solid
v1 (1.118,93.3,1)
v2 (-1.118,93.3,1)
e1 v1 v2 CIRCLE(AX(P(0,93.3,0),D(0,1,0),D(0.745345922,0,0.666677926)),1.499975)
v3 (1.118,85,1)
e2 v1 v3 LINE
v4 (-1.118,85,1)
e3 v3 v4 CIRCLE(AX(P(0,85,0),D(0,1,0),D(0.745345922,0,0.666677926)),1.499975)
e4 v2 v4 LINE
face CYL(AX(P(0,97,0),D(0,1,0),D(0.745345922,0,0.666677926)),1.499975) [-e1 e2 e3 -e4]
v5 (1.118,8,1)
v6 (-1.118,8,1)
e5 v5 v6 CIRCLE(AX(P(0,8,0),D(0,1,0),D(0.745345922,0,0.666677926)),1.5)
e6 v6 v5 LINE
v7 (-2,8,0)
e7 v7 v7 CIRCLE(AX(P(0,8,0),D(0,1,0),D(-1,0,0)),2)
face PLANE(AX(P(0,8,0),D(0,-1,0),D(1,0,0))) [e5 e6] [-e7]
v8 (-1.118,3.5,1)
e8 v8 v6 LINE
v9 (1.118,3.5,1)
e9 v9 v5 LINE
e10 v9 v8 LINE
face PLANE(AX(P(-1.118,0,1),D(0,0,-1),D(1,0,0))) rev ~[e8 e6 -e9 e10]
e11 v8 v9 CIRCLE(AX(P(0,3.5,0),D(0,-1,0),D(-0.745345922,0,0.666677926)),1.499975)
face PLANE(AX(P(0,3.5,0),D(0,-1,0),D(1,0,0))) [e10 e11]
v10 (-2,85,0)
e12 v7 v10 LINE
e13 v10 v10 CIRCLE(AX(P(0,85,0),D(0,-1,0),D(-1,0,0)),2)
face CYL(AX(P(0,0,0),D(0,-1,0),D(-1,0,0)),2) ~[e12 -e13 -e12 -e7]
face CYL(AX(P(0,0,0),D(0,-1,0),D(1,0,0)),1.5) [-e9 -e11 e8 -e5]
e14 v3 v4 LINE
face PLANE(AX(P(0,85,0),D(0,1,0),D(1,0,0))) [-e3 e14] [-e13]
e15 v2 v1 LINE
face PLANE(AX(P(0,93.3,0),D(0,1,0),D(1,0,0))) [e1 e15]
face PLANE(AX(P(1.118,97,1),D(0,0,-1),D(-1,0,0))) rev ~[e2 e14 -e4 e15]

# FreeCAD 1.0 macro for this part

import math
import FreeCAD as App
import Part
import Sketcher

V = App.Vector

doc = App.newDocument("Part")
params = doc.addObject("Spreadsheet::Sheet", "Params")
for row, (alias, value) in enumerate([
    ("sketch1_diameter", "4 mm"),
    ("pad1_length", "97 mm"),
    ("sketch2_radius", "1.5 mm"),
    ("sketch2_diameter", "4 mm"),
    ("pocket1_length", "8 mm"),
    ("sketch3_diameter", "4 mm"),
    ("sketch3_radius", "1.5 mm"),
    ("pocket2_length", "12 mm"),
    ("sketch4_radius", "1.5 mm"),
    ("pocket3_length", "3.7 mm"),
    ("sketch5_radius", "1.5 mm"),
    ("pocket4_length", "3.5 mm"),
], start=1):
    params.set(f"A{row}", alias)
    params.set(f"B{row}", "=" + value)
    params.setAlias(f"B{row}", alias)

body = doc.addObject("PartDesign::Body", "Body")

sketch1 = body.newObject("Sketcher::SketchObject", "Sketch")
sketch1.AttachmentSupport = (doc.getObject("XZ_Plane"), [""])
sketch1.MapMode = "FlatFace"
sketch1.addGeometry(Part.Circle(V(0, 0, 0), V(0, 0, 1), 2), False)
sketch1.addConstraint([
    Sketcher.Constraint("Coincident", 0, 3, -1, 1),
    Sketcher.Constraint("Diameter", 0, 4.0),
])
sketch1.setExpression("Constraints[1]", "Params.sketch1_diameter")
pad1 = body.newObject("PartDesign::Pad", "Pad")
pad1.Profile = sketch1
pad1.setExpression("Length", "Params.pad1_length")
pad1.Reversed = True

sketch2 = body.newObject("Sketcher::SketchObject", "Sketch001")
sketch2.AttachmentSupport = (doc.getObject("XZ_Plane"), [""])
sketch2.MapMode = "FlatFace"
sketch2.addGeometry([
    Part.Circle(V(0, 0, 0), V(0, 0, 1), 2),
    Part.LineSegment(V(-1.1, 1, 0), V(1.1, 1, 0)),
    Part.ArcOfCircle(Part.Circle(V(0, 0, 0), V(0, 0, 1), 1.5), math.radians(138), math.radians(402)),
], False)
sketch2.addConstraint([
    Sketcher.Constraint("Coincident", 1, 1, 2, 1),
    Sketcher.Constraint("Coincident", 2, 2, 1, 2),
    Sketcher.Constraint("Horizontal", 1),
    Sketcher.Constraint("Coincident", 0, 3, -1, 1),
    Sketcher.Constraint("Coincident", 2, 3, -1, 1),
    Sketcher.Constraint("Radius", 2, 1.5),
    Sketcher.Constraint("Diameter", 0, 4.0),
    Sketcher.Constraint("DistanceY", -1, 1, 1, 1, 1.0),
])
sketch2.setExpression("Constraints[5]", "Params.sketch2_radius")
sketch2.setExpression("Constraints[6]", "Params.sketch2_diameter")
pocket1 = body.newObject("PartDesign::Pocket", "Pocket")
pocket1.Profile = sketch2
pocket1.setExpression("Length", "Params.pocket1_length")

sketch3 = body.newObject("Sketcher::SketchObject", "Sketch002")
sketch3.AttachmentSupport = (doc.getObject("XZ_Plane"), [""])
sketch3.MapMode = "FlatFace"
sketch3.AttachmentOffset = App.Placement(V(0, 0, -97), App.Rotation())
sketch3.addGeometry([
    Part.Circle(V(0, 0, 0), V(0, 0, 1), 2),
    Part.ArcOfCircle(Part.Circle(V(0, 0, 0), V(0, 0, 1), 1.5), math.radians(138), math.radians(402)),
    Part.LineSegment(V(1.1, 1, 0), V(-1.1, 1, 0)),
], False)
sketch3.addConstraint([
    Sketcher.Constraint("Coincident", 1, 1, 2, 2),
    Sketcher.Constraint("Coincident", 2, 1, 1, 2),
    Sketcher.Constraint("Horizontal", 2),
    Sketcher.Constraint("Coincident", 0, 3, -1, 1),
    Sketcher.Constraint("Coincident", 1, 3, -1, 1),
    Sketcher.Constraint("Diameter", 0, 4.0),
    Sketcher.Constraint("Radius", 1, 1.5),
    Sketcher.Constraint("DistanceY", -1, 1, 1, 1, 1.0),
])
sketch3.setExpression("Constraints[5]", "Params.sketch3_diameter")
sketch3.setExpression("Constraints[6]", "Params.sketch3_radius")
pocket2 = body.newObject("PartDesign::Pocket", "Pocket001")
pocket2.Profile = sketch3
pocket2.setExpression("Length", "Params.pocket2_length")
pocket2.Reversed = True

sketch4 = body.newObject("Sketcher::SketchObject", "Sketch003")
sketch4.AttachmentSupport = (doc.getObject("XZ_Plane"), [""])
sketch4.MapMode = "FlatFace"
sketch4.AttachmentOffset = App.Placement(V(0, 0, -97), App.Rotation())
sketch4.addGeometry([
    Part.LineSegment(V(-1.1, 1, 0), V(1.1, 1, 0)),
    Part.ArcOfCircle(Part.Circle(V(0, 0, 0), V(0, 0, 1), 1.5), math.radians(138), math.radians(402)),
], False)
sketch4.addConstraint([
    Sketcher.Constraint("Coincident", 0, 1, 1, 1),
    Sketcher.Constraint("Coincident", 1, 2, 0, 2),
    Sketcher.Constraint("Horizontal", 0),
    Sketcher.Constraint("Coincident", 1, 3, -1, 1),
    Sketcher.Constraint("Radius", 1, 1.5),
    Sketcher.Constraint("DistanceY", -1, 1, 0, 1, 1.0),
])
sketch4.setExpression("Constraints[4]", "Params.sketch4_radius")
pocket3 = body.newObject("PartDesign::Pocket", "Pocket002")
pocket3.Profile = sketch4
pocket3.setExpression("Length", "Params.pocket3_length")
pocket3.Reversed = True

sketch5 = body.newObject("Sketcher::SketchObject", "Sketch004")
sketch5.AttachmentSupport = (doc.getObject("XZ_Plane"), [""])
sketch5.MapMode = "FlatFace"
sketch5.addGeometry([
    Part.ArcOfCircle(Part.Circle(V(0, 0, 0), V(0, 0, 1), 1.5), math.radians(138), math.radians(402)),
    Part.LineSegment(V(1.1, 1, 0), V(-1.1, 1, 0)),
], False)
sketch5.addConstraint([
    Sketcher.Constraint("Coincident", 0, 1, 1, 2),
    Sketcher.Constraint("Coincident", 1, 1, 0, 2),
    Sketcher.Constraint("Horizontal", 1),
    Sketcher.Constraint("Coincident", 0, 3, -1, 1),
    Sketcher.Constraint("Radius", 0, 1.5),
    Sketcher.Constraint("DistanceY", -1, 1, 0, 1, 1.0),
])
sketch5.setExpression("Constraints[4]", "Params.sketch5_radius")
pocket4 = body.newObject("PartDesign::Pocket", "Pocket003")
pocket4.Profile = sketch5
pocket4.setExpression("Length", "Params.pocket4_length")

doc.recompute()
